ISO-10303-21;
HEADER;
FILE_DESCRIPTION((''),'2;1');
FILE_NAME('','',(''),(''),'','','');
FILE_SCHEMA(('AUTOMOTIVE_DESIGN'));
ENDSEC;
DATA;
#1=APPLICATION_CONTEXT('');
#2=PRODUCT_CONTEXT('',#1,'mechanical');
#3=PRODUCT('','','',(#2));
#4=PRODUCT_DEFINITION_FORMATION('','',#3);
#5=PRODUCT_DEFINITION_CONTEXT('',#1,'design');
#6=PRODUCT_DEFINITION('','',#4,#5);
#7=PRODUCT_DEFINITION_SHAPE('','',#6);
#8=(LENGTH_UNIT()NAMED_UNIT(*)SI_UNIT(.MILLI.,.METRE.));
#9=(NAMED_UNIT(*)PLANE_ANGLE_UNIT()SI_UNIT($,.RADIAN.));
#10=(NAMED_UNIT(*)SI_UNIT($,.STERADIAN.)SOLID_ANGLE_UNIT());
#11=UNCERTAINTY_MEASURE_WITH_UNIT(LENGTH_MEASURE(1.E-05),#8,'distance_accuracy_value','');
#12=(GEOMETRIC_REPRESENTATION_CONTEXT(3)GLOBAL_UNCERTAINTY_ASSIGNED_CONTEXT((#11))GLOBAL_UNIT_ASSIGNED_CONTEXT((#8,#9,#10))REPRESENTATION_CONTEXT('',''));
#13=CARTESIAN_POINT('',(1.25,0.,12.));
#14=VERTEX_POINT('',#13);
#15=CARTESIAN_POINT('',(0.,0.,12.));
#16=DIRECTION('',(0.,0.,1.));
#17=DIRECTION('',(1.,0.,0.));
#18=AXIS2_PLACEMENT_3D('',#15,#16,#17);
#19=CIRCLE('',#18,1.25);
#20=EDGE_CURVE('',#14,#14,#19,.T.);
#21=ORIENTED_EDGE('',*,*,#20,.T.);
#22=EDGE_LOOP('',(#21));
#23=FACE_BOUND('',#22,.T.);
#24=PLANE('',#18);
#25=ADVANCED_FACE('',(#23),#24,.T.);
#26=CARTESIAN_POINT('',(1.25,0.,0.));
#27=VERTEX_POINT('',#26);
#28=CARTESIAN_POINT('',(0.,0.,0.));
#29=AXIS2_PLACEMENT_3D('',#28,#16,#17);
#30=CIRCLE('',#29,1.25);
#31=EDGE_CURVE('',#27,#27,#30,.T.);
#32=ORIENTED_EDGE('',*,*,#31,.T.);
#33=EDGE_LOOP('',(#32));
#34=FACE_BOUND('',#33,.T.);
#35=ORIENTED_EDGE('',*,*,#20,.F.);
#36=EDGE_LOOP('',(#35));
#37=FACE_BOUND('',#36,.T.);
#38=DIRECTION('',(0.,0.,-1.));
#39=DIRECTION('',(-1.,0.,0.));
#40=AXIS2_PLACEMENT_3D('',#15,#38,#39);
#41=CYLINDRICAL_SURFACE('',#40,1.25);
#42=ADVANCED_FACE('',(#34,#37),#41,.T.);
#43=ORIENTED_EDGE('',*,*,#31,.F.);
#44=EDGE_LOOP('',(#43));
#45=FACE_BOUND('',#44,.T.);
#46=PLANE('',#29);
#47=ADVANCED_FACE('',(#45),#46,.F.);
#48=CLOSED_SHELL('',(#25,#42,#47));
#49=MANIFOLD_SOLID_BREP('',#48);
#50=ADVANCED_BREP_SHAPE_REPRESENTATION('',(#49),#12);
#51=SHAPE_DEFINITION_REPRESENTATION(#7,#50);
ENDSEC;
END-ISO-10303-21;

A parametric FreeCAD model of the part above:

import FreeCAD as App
import Part
import Sketcher

V = App.Vector

doc = App.newDocument("Part")
body = doc.addObject("PartDesign::Body", "Body")

# Sketch on XY plane
sketch1 = body.newObject("Sketcher::SketchObject", "Sketch")
sketch1.AttachmentSupport = (doc.getObject("XY_Plane"), [""])
sketch1.MapMode = "FlatFace"
sketch1.addGeometry(Part.Circle(V(0, 0, 0), V(0, 0, 1), 1.2), False)
sketch1.addConstraint(Sketcher.Constraint("Coincident", 0, 3, -1, 1))
sketch1.addConstraint(Sketcher.Constraint("Diameter", 0, 2.5))
pad1 = body.newObject("PartDesign::Pad", "Pad")
pad1.Profile = sketch1
pad1.Length = 12

doc.recompute()
